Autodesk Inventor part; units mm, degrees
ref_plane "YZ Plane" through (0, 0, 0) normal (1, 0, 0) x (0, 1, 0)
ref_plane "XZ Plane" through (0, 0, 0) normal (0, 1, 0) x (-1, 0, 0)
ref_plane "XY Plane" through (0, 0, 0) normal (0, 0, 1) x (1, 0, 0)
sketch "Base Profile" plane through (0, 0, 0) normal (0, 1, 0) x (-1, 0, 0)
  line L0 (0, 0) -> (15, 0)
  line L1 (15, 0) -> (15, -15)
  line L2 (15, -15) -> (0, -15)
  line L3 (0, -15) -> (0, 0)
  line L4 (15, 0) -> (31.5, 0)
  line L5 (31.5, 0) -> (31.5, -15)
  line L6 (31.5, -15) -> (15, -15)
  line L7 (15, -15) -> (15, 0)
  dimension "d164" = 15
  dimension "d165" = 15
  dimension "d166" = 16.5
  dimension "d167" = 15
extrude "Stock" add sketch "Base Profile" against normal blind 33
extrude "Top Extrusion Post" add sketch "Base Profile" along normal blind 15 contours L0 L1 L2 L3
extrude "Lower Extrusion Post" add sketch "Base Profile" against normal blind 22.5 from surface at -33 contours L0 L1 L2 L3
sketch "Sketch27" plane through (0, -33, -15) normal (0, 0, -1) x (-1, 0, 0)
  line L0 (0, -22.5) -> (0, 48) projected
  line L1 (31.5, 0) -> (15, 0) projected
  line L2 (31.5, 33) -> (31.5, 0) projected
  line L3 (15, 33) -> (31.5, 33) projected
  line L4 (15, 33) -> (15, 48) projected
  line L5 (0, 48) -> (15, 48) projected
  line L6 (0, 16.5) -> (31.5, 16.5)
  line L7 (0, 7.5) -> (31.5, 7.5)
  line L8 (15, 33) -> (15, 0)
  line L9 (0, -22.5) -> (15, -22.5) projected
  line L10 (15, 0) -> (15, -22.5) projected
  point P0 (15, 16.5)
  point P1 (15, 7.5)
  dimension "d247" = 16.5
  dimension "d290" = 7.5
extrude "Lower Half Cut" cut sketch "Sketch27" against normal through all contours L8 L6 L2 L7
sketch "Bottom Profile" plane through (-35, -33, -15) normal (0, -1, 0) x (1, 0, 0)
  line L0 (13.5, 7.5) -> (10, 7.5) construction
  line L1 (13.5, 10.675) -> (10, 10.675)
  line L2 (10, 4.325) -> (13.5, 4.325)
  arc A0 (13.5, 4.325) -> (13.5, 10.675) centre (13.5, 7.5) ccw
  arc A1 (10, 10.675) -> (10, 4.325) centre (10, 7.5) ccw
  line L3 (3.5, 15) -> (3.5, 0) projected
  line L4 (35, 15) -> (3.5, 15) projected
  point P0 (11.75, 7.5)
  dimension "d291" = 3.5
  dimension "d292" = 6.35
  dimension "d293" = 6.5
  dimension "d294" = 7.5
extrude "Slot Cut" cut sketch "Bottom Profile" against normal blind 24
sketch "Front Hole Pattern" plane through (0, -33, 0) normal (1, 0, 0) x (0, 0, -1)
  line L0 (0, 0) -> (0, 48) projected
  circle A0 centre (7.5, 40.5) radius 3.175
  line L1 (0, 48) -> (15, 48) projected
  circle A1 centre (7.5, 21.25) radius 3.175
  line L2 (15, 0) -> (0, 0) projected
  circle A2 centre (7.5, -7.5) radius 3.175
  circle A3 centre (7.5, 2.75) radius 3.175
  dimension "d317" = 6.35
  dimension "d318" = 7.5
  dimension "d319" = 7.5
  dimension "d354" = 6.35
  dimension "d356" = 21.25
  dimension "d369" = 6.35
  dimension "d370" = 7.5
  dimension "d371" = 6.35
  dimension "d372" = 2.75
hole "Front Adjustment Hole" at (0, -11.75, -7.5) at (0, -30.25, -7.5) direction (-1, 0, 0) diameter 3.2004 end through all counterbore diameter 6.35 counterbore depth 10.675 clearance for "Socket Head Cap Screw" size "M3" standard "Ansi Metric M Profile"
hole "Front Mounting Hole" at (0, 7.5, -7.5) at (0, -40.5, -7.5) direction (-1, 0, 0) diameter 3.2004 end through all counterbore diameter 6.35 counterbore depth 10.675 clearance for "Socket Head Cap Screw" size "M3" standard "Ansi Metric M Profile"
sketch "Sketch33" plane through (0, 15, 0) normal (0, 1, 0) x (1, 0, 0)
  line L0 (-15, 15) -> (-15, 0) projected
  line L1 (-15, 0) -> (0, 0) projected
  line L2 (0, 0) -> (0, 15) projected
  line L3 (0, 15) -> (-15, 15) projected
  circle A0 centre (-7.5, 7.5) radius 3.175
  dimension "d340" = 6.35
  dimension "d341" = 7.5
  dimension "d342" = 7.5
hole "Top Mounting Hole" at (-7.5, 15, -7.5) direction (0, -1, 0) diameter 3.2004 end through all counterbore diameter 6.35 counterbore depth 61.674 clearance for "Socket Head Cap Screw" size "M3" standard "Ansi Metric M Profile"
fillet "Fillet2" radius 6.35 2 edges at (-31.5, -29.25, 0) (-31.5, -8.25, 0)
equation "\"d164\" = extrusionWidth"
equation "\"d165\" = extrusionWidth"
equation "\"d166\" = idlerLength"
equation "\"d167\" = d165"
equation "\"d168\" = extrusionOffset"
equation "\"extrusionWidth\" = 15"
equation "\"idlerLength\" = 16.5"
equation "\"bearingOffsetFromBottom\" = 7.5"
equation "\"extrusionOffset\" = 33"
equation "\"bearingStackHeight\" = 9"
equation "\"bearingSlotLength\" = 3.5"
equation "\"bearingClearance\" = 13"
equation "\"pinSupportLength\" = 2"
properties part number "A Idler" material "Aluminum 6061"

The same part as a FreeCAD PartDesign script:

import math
import FreeCAD as App
import Part
import Sketcher
Q = App.Units.Quantity


def edges_at(feature, points):
    """Names of the edges that pass closest to the given points."""
    edges = feature.Shape.Edges
    near = lambda p: min(range(len(edges)), key=lambda i: edges[i].distToShape(Part.Vertex(*p))[0])
    return sorted({f"Edge{near(p) + 1}" for p in points})


def add_polygon(sketch, points):
    """Adds a closed chain of lines whose ends are joined by coincident constraints."""
    first, n = sketch.GeometryCount, len(points)
    for a, b in zip(points, points[1:] + points[:1]):
        sketch.addGeometry(Part.LineSegment(App.Vector(*a, 0), App.Vector(*b, 0)), False)
    for i in range(n):
        sketch.addConstraint(Sketcher.Constraint("Coincident", first + i, 2, first + (i + 1) % n, 1))

doc = App.newDocument("Part")
params = doc.addObject("Spreadsheet::Sheet", "Params")
for row, (alias, value) in enumerate([
    ("sketch1_height", "15 mm"),
    ("sketch1_width", "31.5 mm"),
    ("pad1_length", "33 mm"),
    ("sketch2_width", "15 mm"),
    ("pad2_length", "15 mm"),
    ("sketch3_width", "15 mm"),
    ("pad3_length", "22.5 mm"),
    ("sketch4_width", "16.5 mm"),
    ("sketch4_height", "9 mm"),
    ("sketch5_width", "3.5 mm"),
    ("pocket2_length", "24 mm"),
    ("hole_diameter", "3.2004 mm"),
    ("hole_cbore_diameter", "6.35 mm"),
    ("hole_cbore_depth", "10.675 mm"),
    ("hole2_diameter", "3.2004 mm"),
    ("hole2_cbore_diameter", "6.35 mm"),
    ("hole2_cbore_depth", "10.675 mm"),
    ("hole3_diameter", "3.2004 mm"),
    ("hole3_cbore_diameter", "6.35 mm"),
    ("hole3_cbore_depth", "61.674 mm"),
    ("fillet_radius", "6.35 mm"),
], start=1):
    params.set(f"A{row}", alias)
    params.set(f"B{row}", "=" + value)
    params.setAlias(f"B{row}", alias)

body = doc.addObject("PartDesign::Body", "Body")

# Sketch on XZ plane
sketch1 = body.newObject("Sketcher::SketchObject", "Sketch")
sketch1.AttachmentSupport = (doc.getObject("XZ_Plane"), [""])
sketch1.MapMode = "FlatFace"
add_polygon(sketch1, [(0, 0), (0, -15), (-31.5, -15), (-31.5, 0)])  # lines 0-3
sketch1.addConstraint(Sketcher.Constraint("Vertical", 0))
sketch1.addConstraint(Sketcher.Constraint("Horizontal", 1))
sketch1.addConstraint(Sketcher.Constraint("Vertical", 2))
sketch1.addConstraint(Sketcher.Constraint("Horizontal", 3))
sketch1.addConstraint(Sketcher.Constraint("Coincident", 3, 2, -1, 1))
sketch1.addConstraint(Sketcher.Constraint("DistanceY", 0, 2, 0, 1, Q("15 mm")))
sketch1.addConstraint(Sketcher.Constraint("DistanceX", 1, 2, 1, 1, Q("31.5 mm")))
sketch1.setExpression("Constraints[9]", "Params.sketch1_height")
sketch1.setExpression("Constraints[10]", "Params.sketch1_width")
pad1 = body.newObject("PartDesign::Pad", "Pad")
pad1.Profile = sketch1
pad1.setExpression("Length", "Params.pad1_length")

# Sketch on XZ plane
sketch2 = body.newObject("Sketcher::SketchObject", "Sketch001")
sketch2.AttachmentSupport = (doc.getObject("XZ_Plane"), [""])
sketch2.MapMode = "FlatFace"
add_polygon(sketch2, [(-15, 0), (0, 0), (0, -15), (-15, -15)])  # lines 0-3
sketch2.addConstraint(Sketcher.Constraint("Horizontal", 0))
sketch2.addConstraint(Sketcher.Constraint("Vertical", 1))
sketch2.addConstraint(Sketcher.Constraint("Horizontal", 2))
sketch2.addConstraint(Sketcher.Constraint("Vertical", 3))
sketch2.addConstraint(Sketcher.Constraint("Coincident", 0, 2, -1, 1))
sketch2.addConstraint(Sketcher.Constraint("Equal", 2, 1))
sketch2.addConstraint(Sketcher.Constraint("DistanceX", 0, 1, 0, 2, Q("15 mm")))
sketch2.setExpression("Constraints[10]", "Params.sketch2_width")
pad2 = body.newObject("PartDesign::Pad", "Pad001")
pad2.Profile = sketch2
pad2.setExpression("Length", "Params.pad2_length")
pad2.Reversed = True

# Sketch on XZ plane
sketch3 = body.newObject("Sketcher::SketchObject", "Sketch002")
sketch3.AttachmentSupport = (doc.getObject("XZ_Plane"), [""])
sketch3.MapMode = "FlatFace"
sketch3.AttachmentOffset = App.Placement(App.Vector(0, 0, 33), App.Rotation())
add_polygon(sketch3, [(-15, 0), (0, 0), (0, -15), (-15, -15)])  # lines 0-3
sketch3.addConstraint(Sketcher.Constraint("Horizontal", 0))
sketch3.addConstraint(Sketcher.Constraint("Vertical", 1))
sketch3.addConstraint(Sketcher.Constraint("Horizontal", 2))
sketch3.addConstraint(Sketcher.Constraint("Vertical", 3))
sketch3.addConstraint(Sketcher.Constraint("Coincident", 0, 2, -1, 1))
sketch3.addConstraint(Sketcher.Constraint("Equal", 2, 1))
sketch3.addConstraint(Sketcher.Constraint("DistanceX", 0, 1, 0, 2, Q("15 mm")))
sketch3.setExpression("Constraints[10]", "Params.sketch3_width")
pad3 = body.newObject("PartDesign::Pad", "Pad002")
pad3.Profile = sketch3
pad3.setExpression("Length", "Params.pad3_length")

# Sketch on XY plane
sketch4 = body.newObject("Sketcher::SketchObject", "Sketch003")
sketch4.AttachmentSupport = (doc.getObject("XY_Plane"), [""])
sketch4.MapMode = "FlatFace"
sketch4.AttachmentOffset = App.Placement(App.Vector(0, 0, -15), App.Rotation())
add_polygon(sketch4, [(-15, -16.5), (-15, -25.5), (-31.5, -25.5), (-31.5, -16.5)])  # lines 0-3
sketch4.addConstraint(Sketcher.Constraint("Vertical", 0))
sketch4.addConstraint(Sketcher.Constraint("Horizontal", 1))
sketch4.addConstraint(Sketcher.Constraint("Vertical", 2))
sketch4.addConstraint(Sketcher.Constraint("Horizontal", 3))
sketch4.addConstraint(Sketcher.Constraint("DistanceX", 1, 2, 1, 1, Q("16.5 mm")))
sketch4.addConstraint(Sketcher.Constraint("DistanceY", 2, 2, -1, 1, Q("16.5 mm")))
sketch4.addConstraint(Sketcher.Constraint("DistanceY", 0, 2, 0, 1, Q("9 mm")))
sketch4.addConstraint(Sketcher.Constraint("DistanceX", 0, 2, -1, 1, Q("15 mm")))
sketch4.setExpression("Constraints[8]", "Params.sketch4_width")
sketch4.setExpression("Constraints[10]", "Params.sketch4_height")
pocket1 = body.newObject("PartDesign::Pocket", "Pocket")
pocket1.Profile = sketch4
pocket1.Type = "ThroughAll"
pocket1.Reversed = True

# Sketch on XZ plane
sketch5 = body.newObject("Sketcher::SketchObject", "Sketch004")
sketch5.AttachmentSupport = (doc.getObject("XZ_Plane"), [""])
sketch5.MapMode = "FlatFace"
sketch5.AttachmentOffset = App.Placement(App.Vector(0, 0, 33), App.Rotation())
sketch5.addGeometry(Part.ArcOfCircle(Part.Circle(App.Vector(-21.5, -7.5, 0), App.Vector(0, 0, 1), 3.175), math.radians(-90), math.radians(90)), False)
sketch5.addGeometry(Part.LineSegment(App.Vector(-21.5, -4.325, 0), App.Vector(-25, -4.325, 0)), False)
sketch5.addGeometry(Part.ArcOfCircle(Part.Circle(App.Vector(-25, -7.5, 0), App.Vector(0, 0, 1), 3.175), math.radians(90), math.radians(270)), False)
sketch5.addGeometry(Part.LineSegment(App.Vector(-25, -10.675, 0), App.Vector(-21.5, -10.675, 0)), False)
sketch5.addConstraint(Sketcher.Constraint("Tangent", 0, 2, 1, 1))
sketch5.addConstraint(Sketcher.Constraint("Tangent", 1, 2, 2, 1))
sketch5.addConstraint(Sketcher.Constraint("Tangent", 2, 2, 3, 1))
sketch5.addConstraint(Sketcher.Constraint("Tangent", 3, 2, 0, 1))
sketch5.addConstraint(Sketcher.Constraint("Horizontal", 1))
sketch5.addConstraint(Sketcher.Constraint("Horizontal", 3))
sketch5.addConstraint(Sketcher.Constraint("DistanceX", 1, 2, 1, 1, Q("3.5 mm")))
sketch5.addConstraint(Sketcher.Constraint("Radius", 0, Q("3.175 mm")))
sketch5.addConstraint(Sketcher.Constraint("DistanceY", 0, 3, -1, 1, Q("7.5 mm")))
sketch5.addConstraint(Sketcher.Constraint("DistanceX", 2, 3, -1, 1, Q("25 mm")))
sketch5.setExpression("Constraints[6]", "Params.sketch5_width")
pocket2 = body.newObject("PartDesign::Pocket", "Pocket001")
pocket2.Profile = sketch5
pocket2.setExpression("Length", "Params.pocket2_length")

# Sketch on YZ plane
sketch6 = body.newObject("Sketcher::SketchObject", "Sketch005")
sketch6.AttachmentSupport = (doc.getObject("YZ_Plane"), [""])
sketch6.MapMode = "FlatFace"
sketch6.addGeometry(Part.Circle(App.Vector(-11.75, -7.5, 0), App.Vector(0, 0, 1), 1.6002), False)
sketch6.addGeometry(Part.Circle(App.Vector(-30.25, -7.5, 0), App.Vector(0, 0, 1), 1.6002), False)
sketch6.addConstraint(Sketcher.Constraint("Equal", 0, 1))
sketch6.addConstraint(Sketcher.Constraint("Horizontal", 0, 3, 1, 3))
sketch6.addConstraint(Sketcher.Constraint("Diameter", 0, Q("3.2004 mm")))
sketch6.addConstraint(Sketcher.Constraint("DistanceY", 0, 3, -1, 1, Q("7.5 mm")))
sketch6.addConstraint(Sketcher.Constraint("DistanceX", 1, 3, 0, 3, Q("18.5 mm")))
sketch6.addConstraint(Sketcher.Constraint("DistanceX", 0, 3, -1, 1, Q("11.75 mm")))
doc.recompute()
hole = body.newObject("PartDesign::Hole", "Hole")
hole.Profile = sketch6
hole.ThreadType = "None"
hole.setExpression("Diameter", "Params.hole_diameter")
hole.DepthType = "ThroughAll"
hole.HoleCutType = "Counterbore"
hole.setExpression("HoleCutDiameter", "Params.hole_cbore_diameter")
hole.setExpression("HoleCutDepth", "Params.hole_cbore_depth")

# Sketch on YZ plane
sketch7 = body.newObject("Sketcher::SketchObject", "Sketch006")
sketch7.AttachmentSupport = (doc.getObject("YZ_Plane"), [""])
sketch7.MapMode = "FlatFace"
sketch7.addGeometry(Part.Circle(App.Vector(7.5, -7.5, 0), App.Vector(0, 0, 1), 1.6002), False)
sketch7.addGeometry(Part.Circle(App.Vector(-40.5, -7.5, 0), App.Vector(0, 0, 1), 1.6002), False)
sketch7.addConstraint(Sketcher.Constraint("Equal", 0, 1))
sketch7.addConstraint(Sketcher.Constraint("Horizontal", 0, 3, 1, 3))
sketch7.addConstraint(Sketcher.Constraint("DistanceX", 1, 3, 0, 3, Q("48 mm")))
sketch7.addConstraint(Sketcher.Constraint("Diameter", 0, Q("3.2004 mm")))
sketch7.addConstraint(Sketcher.Constraint("DistanceX", -1, 1, 0, 3, Q("7.5 mm")))
sketch7.addConstraint(Sketcher.Constraint("DistanceY", 0, 3, -1, 1, Q("7.5 mm")))
doc.recompute()
hole2 = body.newObject("PartDesign::Hole", "Hole001")
hole2.Profile = sketch7
hole2.ThreadType = "None"
hole2.setExpression("Diameter", "Params.hole2_diameter")
hole2.DepthType = "ThroughAll"
hole2.HoleCutType = "Counterbore"
hole2.setExpression("HoleCutDiameter", "Params.hole2_cbore_diameter")
hole2.setExpression("HoleCutDepth", "Params.hole2_cbore_depth")

# Sketch on XZ plane
sketch8 = body.newObject("Sketcher::SketchObject", "Sketch007")
sketch8.AttachmentSupport = (doc.getObject("XZ_Plane"), [""])
sketch8.MapMode = "FlatFace"
sketch8.AttachmentOffset = App.Placement(App.Vector(0, 0, -15), App.Rotation())
sketch8.addGeometry(Part.Circle(App.Vector(-7.5, -7.5, 0), App.Vector(0, 0, 1), 1.6002), False)
sketch8.addConstraint(Sketcher.Constraint("Diameter", 0, Q("3.2004 mm")))
sketch8.addConstraint(Sketcher.Constraint("DistanceX", 0, 3, -1, 1, Q("7.5 mm")))
sketch8.addConstraint(Sketcher.Constraint("DistanceY", 0, 3, -1, 1, Q("7.5 mm")))
doc.recompute()
hole3 = body.newObject("PartDesign::Hole", "Hole002")
hole3.Profile = sketch8
hole3.ThreadType = "None"
hole3.setExpression("Diameter", "Params.hole3_diameter")
hole3.DepthType = "ThroughAll"
hole3.HoleCutType = "Counterbore"
hole3.setExpression("HoleCutDiameter", "Params.hole3_cbore_diameter")
hole3.setExpression("HoleCutDepth", "Params.hole3_cbore_depth")
hole3.Reversed = True
doc.recompute()

fillet = body.newObject("PartDesign::Fillet", "Fillet")
fillet.Base = (hole3, edges_at(hole3, [(-31.5, -29.25, 0), (-31.5, -8.25, 0)]))
fillet.setExpression("Radius", "Params.fillet_radius")

doc.recompute()
